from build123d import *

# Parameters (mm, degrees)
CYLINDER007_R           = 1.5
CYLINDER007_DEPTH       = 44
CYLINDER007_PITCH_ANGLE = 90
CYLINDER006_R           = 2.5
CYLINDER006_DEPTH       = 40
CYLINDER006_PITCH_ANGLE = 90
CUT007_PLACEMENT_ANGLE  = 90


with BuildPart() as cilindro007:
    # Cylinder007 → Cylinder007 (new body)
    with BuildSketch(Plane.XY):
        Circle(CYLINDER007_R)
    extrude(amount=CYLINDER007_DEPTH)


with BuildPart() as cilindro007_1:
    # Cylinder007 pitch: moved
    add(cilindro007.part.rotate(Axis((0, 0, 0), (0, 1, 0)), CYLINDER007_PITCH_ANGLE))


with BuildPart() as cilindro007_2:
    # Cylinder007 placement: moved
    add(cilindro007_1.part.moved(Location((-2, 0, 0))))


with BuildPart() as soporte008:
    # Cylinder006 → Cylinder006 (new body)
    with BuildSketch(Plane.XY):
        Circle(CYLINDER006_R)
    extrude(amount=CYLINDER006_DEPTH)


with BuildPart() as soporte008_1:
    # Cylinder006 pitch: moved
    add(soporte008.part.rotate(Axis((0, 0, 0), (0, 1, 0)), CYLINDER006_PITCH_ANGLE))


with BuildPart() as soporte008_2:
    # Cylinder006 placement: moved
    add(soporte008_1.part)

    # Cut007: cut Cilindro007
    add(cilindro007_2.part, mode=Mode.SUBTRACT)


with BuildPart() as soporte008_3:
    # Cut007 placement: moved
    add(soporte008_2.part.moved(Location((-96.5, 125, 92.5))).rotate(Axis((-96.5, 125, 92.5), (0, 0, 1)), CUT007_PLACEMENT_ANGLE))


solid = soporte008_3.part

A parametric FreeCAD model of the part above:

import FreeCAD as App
import Part
import Sketcher
Q = App.Units.Quantity

doc = App.newDocument("Part")
body = doc.addObject("PartDesign::Body", "Body")

sketch1 = body.newObject("Sketcher::SketchObject", "Sketch")
sketch1.AttachmentSupport = (doc.getObject("XY_Plane"), [""])
sketch1.MapMode = "FlatFace"
sketch1.addGeometry(Part.Circle(App.Vector(0, 0, 0), App.Vector(0, 0, 1), 1.5), False)
sketch1.addConstraint([
    Sketcher.Constraint("Coincident", 0, 3, -1, 1),
    Sketcher.Constraint("Diameter", 0, Q("3 mm")),
])
pad1 = body.newObject("PartDesign::Pad", "Pad")
pad1.Profile = sketch1
pad1.Length = 44
body2 = doc.addObject("PartDesign::Body", "Body001")
doc.recompute()

body.Placement = App.Placement(App.Vector(0, 0, 0), App.Rotation(App.Vector(0, 1, 0), 90))
boolean = body2.newObject("PartDesign::Boolean", "Boolean")
boolean.Type = "Fuse"
boolean.addObjects([body])
body3 = doc.addObject("PartDesign::Body", "Body002")
doc.recompute()

body2.Placement = App.Placement(App.Vector(-2, 0, 0), App.Rotation(App.Vector(0, 0, 1), 0))
boolean2 = body3.newObject("PartDesign::Boolean", "Boolean001")
boolean2.Type = "Fuse"
boolean2.addObjects([body2])
body4 = doc.addObject("PartDesign::Body", "Body003")

sketch2 = body4.newObject("Sketcher::SketchObject", "Sketch001")
sketch2.AttachmentSupport = (doc.getObject("XY_Plane003"), [""])
sketch2.MapMode = "FlatFace"
sketch2.addGeometry(Part.Circle(App.Vector(0, 0, 0), App.Vector(0, 0, 1), 2.5), False)
sketch2.addConstraint([
    Sketcher.Constraint("Coincident", 0, 3, -1, 1),
    Sketcher.Constraint("Diameter", 0, Q("5 mm")),
])
pad2 = body4.newObject("PartDesign::Pad", "Pad001")
pad2.Profile = sketch2
pad2.Length = 40
body5 = doc.addObject("PartDesign::Body", "Body004")
doc.recompute()

body4.Placement = App.Placement(App.Vector(0, 0, 0), App.Rotation(App.Vector(0, 1, 0), 90))
boolean3 = body5.newObject("PartDesign::Boolean", "Boolean002")
boolean3.Type = "Fuse"
boolean3.addObjects([body4])
doc.recompute()

boolean4 = body5.newObject("PartDesign::Boolean", "Boolean003")
boolean4.Type = "Cut"
boolean4.addObjects([body3])
body6 = doc.addObject("PartDesign::Body", "Body005")
doc.recompute()

body5.Placement = App.Placement(App.Vector(-96.5, 125, 92.5), App.Rotation(App.Vector(0, 0, 1), 90))
boolean5 = body6.newObject("PartDesign::Boolean", "Boolean004")
boolean5.Type = "Fuse"
boolean5.addObjects([body5])

doc.recompute()
